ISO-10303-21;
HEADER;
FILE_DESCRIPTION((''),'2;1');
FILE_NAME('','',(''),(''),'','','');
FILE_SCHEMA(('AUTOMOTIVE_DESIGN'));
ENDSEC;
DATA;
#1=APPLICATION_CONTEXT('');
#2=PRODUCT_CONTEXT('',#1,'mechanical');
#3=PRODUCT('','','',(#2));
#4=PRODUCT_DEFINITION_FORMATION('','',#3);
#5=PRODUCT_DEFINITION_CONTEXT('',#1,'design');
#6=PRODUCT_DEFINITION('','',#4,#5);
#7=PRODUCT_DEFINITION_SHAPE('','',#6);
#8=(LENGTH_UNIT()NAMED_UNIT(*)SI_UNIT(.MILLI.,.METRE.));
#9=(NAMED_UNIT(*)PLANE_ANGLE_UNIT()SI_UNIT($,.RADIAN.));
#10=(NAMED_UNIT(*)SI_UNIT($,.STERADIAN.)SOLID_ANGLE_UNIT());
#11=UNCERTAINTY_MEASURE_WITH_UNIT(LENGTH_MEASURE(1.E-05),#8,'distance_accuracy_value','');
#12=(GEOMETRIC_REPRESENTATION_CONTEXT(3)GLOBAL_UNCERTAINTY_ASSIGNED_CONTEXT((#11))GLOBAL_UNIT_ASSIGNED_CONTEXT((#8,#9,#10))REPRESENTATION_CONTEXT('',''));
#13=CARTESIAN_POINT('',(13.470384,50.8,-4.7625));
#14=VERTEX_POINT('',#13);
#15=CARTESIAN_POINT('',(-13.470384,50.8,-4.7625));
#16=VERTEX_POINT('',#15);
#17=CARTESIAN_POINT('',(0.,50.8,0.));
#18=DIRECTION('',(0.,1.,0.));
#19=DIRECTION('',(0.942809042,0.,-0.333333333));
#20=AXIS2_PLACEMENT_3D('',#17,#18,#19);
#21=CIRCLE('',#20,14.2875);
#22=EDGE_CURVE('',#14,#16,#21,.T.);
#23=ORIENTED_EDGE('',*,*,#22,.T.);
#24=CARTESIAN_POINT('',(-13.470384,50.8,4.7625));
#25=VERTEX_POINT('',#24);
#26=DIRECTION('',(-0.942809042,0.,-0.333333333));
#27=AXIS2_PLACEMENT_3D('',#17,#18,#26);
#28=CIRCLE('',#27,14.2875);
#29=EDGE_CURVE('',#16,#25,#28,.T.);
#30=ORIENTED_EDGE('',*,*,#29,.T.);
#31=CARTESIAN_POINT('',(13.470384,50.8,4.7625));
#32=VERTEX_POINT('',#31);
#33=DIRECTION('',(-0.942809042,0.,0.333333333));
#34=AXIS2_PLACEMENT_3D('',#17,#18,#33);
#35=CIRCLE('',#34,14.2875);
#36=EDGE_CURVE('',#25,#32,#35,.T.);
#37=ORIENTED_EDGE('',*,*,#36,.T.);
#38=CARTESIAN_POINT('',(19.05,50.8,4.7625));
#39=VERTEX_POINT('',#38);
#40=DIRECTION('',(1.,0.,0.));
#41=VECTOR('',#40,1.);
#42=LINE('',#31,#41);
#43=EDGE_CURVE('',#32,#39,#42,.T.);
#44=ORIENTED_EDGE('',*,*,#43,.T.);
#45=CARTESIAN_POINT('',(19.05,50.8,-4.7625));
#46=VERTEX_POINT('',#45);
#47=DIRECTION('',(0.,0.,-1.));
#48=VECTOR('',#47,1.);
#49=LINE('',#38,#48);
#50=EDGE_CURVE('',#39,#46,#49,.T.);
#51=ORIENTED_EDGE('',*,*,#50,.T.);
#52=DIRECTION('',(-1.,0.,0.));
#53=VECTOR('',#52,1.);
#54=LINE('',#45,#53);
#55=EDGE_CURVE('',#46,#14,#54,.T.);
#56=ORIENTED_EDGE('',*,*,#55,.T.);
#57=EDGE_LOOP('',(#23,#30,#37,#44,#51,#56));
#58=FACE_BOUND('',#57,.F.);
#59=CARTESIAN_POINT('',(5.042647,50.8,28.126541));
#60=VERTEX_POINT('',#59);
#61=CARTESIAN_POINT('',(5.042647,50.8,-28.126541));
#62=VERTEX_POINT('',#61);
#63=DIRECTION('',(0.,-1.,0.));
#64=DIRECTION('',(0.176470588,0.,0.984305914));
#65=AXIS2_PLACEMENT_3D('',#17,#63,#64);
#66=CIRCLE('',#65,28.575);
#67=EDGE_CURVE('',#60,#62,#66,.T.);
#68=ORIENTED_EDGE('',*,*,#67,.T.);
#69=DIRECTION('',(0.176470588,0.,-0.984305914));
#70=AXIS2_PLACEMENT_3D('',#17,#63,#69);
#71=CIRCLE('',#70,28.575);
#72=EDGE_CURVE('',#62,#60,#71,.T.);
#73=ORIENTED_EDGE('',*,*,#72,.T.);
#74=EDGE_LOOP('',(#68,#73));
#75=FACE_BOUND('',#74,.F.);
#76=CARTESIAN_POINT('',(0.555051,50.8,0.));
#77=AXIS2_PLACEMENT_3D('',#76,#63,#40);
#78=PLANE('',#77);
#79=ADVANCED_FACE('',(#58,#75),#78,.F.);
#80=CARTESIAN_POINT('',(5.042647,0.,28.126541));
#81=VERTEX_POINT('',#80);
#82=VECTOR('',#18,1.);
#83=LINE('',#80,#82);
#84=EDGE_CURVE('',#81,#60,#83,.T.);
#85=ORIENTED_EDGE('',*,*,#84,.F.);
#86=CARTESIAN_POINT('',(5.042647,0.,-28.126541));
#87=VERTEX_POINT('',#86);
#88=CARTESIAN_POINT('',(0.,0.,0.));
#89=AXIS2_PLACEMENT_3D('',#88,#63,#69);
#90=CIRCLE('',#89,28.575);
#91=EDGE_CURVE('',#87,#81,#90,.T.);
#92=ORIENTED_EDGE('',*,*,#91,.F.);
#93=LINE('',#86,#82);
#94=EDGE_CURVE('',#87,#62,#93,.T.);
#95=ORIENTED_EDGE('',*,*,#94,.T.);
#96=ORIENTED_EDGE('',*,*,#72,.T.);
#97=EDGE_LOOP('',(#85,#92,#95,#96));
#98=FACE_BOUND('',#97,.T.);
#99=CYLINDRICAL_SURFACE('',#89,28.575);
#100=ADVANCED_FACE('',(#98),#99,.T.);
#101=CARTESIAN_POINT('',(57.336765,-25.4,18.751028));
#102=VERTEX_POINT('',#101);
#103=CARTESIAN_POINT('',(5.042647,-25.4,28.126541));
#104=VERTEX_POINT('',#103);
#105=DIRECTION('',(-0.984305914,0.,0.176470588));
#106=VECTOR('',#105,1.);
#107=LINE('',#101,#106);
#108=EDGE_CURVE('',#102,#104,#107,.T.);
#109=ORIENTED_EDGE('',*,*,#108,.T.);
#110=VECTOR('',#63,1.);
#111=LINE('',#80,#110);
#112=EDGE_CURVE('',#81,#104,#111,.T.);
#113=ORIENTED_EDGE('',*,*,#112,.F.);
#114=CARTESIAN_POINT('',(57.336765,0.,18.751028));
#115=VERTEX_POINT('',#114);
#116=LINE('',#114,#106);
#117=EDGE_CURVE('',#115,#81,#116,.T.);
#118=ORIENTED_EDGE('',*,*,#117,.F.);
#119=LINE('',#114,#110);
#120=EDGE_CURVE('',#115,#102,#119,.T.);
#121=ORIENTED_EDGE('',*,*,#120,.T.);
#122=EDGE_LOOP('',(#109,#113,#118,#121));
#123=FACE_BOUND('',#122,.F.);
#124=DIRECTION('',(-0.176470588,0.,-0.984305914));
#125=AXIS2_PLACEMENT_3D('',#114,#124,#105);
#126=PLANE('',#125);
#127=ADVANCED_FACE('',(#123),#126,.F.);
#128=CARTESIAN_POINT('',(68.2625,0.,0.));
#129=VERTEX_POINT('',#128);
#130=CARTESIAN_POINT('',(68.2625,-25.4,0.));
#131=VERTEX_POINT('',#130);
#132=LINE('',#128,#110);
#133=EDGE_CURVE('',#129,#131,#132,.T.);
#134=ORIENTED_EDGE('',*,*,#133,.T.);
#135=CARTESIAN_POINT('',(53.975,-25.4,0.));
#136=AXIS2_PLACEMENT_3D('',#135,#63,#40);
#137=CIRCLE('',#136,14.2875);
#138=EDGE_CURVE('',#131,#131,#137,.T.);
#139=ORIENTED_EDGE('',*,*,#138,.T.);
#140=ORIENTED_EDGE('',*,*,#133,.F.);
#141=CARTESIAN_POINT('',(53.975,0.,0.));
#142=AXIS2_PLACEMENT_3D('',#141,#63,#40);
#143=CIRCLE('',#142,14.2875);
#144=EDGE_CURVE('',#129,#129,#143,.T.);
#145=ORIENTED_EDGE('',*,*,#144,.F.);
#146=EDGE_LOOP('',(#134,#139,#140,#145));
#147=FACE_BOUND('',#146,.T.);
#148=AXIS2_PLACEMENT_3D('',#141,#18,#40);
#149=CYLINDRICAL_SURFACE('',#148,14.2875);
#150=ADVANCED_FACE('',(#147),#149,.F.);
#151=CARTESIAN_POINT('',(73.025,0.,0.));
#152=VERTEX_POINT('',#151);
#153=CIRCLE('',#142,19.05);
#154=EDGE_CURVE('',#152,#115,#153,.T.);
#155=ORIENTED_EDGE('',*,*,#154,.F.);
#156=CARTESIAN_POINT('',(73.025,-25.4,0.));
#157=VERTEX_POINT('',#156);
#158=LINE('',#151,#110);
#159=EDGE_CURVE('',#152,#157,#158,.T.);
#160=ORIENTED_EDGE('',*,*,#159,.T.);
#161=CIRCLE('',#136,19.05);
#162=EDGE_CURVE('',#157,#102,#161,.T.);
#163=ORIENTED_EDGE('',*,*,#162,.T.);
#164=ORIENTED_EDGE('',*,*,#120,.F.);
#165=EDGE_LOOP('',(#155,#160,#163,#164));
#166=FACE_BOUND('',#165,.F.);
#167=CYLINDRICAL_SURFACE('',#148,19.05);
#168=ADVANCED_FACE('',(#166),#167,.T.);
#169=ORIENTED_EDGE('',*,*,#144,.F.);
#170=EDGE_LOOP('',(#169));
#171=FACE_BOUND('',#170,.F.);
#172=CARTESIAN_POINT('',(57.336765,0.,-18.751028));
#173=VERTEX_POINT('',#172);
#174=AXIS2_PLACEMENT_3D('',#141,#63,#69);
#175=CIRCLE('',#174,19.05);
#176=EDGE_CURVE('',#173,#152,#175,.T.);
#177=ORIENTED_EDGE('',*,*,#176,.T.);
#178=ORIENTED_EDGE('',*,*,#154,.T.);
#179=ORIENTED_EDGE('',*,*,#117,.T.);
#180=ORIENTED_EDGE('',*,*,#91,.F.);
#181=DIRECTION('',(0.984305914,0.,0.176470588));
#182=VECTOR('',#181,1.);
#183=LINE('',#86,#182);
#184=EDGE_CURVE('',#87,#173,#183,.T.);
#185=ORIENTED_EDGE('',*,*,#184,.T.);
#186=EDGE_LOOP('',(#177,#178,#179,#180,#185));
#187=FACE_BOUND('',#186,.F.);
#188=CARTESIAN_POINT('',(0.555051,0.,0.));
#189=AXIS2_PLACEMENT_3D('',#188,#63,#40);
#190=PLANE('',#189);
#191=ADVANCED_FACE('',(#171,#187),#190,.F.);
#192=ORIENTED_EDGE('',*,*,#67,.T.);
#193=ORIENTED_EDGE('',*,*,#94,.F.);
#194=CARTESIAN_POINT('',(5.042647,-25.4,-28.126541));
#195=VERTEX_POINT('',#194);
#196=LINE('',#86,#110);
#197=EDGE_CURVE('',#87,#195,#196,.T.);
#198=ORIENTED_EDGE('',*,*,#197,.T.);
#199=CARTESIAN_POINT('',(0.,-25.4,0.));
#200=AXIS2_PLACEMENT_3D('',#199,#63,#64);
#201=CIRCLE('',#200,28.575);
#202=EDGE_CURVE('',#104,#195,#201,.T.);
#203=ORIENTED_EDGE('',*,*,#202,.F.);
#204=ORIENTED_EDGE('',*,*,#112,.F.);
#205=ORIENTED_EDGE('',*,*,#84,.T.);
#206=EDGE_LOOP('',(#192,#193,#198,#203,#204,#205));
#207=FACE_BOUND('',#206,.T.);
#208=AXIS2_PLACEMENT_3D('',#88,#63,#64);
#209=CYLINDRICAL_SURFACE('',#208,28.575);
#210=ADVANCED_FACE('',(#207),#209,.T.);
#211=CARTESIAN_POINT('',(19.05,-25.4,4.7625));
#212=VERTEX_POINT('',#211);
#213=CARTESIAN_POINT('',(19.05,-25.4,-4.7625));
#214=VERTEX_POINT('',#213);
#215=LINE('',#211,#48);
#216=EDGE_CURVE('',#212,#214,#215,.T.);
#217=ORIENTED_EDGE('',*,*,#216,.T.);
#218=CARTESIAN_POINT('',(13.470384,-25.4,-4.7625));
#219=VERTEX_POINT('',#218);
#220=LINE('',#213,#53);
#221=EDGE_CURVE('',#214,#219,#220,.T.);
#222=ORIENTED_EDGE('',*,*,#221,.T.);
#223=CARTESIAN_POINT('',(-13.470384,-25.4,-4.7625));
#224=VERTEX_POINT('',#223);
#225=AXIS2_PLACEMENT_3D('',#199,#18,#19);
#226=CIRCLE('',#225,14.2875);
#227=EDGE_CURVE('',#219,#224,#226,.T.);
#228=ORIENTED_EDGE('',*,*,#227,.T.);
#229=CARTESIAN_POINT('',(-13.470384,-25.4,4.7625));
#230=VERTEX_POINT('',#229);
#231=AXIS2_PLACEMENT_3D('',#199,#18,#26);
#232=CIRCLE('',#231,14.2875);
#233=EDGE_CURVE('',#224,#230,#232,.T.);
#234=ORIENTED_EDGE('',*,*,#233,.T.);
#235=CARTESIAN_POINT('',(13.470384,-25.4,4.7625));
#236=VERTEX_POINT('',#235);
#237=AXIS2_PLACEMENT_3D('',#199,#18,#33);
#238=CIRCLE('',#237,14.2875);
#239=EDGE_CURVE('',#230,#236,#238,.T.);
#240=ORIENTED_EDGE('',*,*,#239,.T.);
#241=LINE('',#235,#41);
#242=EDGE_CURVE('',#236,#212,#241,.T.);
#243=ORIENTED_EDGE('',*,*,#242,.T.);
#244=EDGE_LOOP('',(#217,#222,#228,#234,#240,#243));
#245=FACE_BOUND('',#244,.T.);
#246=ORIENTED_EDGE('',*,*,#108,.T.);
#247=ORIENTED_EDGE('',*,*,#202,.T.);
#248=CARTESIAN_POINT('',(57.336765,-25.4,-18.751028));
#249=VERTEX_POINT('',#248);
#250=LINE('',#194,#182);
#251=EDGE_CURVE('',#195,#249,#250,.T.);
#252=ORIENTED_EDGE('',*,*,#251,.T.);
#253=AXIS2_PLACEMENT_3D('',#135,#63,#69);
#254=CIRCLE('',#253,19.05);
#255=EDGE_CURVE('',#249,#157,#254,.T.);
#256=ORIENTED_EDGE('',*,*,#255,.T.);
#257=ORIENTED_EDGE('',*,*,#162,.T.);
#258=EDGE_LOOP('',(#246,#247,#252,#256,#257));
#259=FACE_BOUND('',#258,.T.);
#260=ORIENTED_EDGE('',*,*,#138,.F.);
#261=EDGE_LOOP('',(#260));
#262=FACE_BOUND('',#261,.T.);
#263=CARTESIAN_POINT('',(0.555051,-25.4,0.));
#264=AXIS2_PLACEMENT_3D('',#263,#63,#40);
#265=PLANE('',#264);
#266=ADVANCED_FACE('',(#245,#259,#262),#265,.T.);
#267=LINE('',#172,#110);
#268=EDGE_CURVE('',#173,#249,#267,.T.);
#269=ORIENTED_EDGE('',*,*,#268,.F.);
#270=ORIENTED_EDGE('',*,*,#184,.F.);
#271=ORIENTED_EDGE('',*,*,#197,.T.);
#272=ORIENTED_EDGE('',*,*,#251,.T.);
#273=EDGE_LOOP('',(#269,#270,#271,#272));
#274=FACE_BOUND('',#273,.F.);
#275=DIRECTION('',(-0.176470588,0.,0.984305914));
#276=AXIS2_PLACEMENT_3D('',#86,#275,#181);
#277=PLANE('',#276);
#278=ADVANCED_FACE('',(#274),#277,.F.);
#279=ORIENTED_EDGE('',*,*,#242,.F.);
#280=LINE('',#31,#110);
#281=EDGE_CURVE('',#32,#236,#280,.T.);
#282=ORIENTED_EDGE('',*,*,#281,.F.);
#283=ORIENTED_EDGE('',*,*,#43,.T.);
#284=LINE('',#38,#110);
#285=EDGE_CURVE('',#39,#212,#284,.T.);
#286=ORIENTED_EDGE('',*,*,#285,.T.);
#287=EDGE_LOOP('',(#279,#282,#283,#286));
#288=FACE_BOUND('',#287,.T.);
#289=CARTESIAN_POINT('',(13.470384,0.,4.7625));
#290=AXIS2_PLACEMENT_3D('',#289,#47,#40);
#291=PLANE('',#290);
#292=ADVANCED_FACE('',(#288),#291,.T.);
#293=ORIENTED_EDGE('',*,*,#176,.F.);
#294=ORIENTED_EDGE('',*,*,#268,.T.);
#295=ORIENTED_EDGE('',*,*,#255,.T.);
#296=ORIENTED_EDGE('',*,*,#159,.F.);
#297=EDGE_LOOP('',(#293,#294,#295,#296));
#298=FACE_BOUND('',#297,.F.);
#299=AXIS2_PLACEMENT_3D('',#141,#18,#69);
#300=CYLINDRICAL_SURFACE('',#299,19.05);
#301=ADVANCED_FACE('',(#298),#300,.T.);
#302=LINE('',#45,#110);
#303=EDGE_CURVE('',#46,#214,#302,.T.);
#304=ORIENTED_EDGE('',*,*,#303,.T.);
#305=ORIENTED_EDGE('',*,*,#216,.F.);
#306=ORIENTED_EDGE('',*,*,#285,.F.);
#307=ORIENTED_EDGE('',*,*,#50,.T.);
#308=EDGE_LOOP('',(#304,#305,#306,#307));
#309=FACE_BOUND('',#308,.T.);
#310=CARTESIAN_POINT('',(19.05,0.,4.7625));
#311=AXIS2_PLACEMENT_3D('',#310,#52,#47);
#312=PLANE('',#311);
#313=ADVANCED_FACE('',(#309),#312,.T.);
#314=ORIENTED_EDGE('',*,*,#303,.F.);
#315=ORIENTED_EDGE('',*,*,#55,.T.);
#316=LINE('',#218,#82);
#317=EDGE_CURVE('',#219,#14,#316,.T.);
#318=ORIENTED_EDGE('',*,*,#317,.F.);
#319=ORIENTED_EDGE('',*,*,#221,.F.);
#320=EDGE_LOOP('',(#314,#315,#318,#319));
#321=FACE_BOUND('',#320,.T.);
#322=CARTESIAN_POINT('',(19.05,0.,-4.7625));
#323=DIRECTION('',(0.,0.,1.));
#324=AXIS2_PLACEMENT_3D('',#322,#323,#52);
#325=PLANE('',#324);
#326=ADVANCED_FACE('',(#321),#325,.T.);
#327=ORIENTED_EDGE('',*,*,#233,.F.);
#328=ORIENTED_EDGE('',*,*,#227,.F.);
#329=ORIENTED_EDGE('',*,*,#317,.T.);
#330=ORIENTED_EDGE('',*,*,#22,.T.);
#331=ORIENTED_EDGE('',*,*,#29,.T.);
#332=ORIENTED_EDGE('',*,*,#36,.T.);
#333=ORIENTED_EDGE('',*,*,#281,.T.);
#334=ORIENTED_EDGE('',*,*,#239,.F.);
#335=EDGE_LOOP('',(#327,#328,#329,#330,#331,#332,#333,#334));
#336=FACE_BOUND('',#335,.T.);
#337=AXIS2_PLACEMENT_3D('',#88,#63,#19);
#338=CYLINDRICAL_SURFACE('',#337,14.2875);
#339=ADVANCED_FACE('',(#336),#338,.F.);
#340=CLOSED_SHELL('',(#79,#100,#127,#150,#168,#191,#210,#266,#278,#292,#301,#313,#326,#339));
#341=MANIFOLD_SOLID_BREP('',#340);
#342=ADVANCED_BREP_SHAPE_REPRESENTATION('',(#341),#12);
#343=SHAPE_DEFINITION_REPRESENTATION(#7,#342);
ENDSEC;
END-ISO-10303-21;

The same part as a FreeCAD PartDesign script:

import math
import FreeCAD as App
import Part
import Sketcher

V = App.Vector
Q = App.Units.Quantity

doc = App.newDocument("Part")
body = doc.addObject("PartDesign::Body", "Body")

sketch1 = body.newObject("Sketcher::SketchObject", "Sketch")
sketch1.AttachmentSupport = (doc.getObject("XZ_Plane"), [""])
sketch1.MapMode = "FlatFace"
sketch1.addGeometry([
    Part.ArcOfCircle(Part.Circle(V(0, 0, 0), V(0, 0, 1), 29), math.radians(80), math.radians(280)),
    Part.LineSegment(V(5, -28, 0), V(57, -19, 0)),
    Part.ArcOfCircle(Part.Circle(V(54, 0, 0), V(0, 0, 1), 19), math.radians(-80), math.radians(0)),
    Part.ArcOfCircle(Part.Circle(V(54, 0, 0), V(0, 0, 1), 19), math.radians(0), math.radians(80)),
    Part.LineSegment(V(57, 19, 0), V(5, 28, 0)),
    Part.ArcOfCircle(Part.Circle(V(0, 0, 0), V(0, 0, 1), 14), math.radians(19), math.radians(161)),
    Part.LineSegment(V(13, 5, 0), V(19, 5, 0)),
    Part.LineSegment(V(19, 5, 0), V(19, -5, 0)),
    Part.LineSegment(V(19, -5, 0), V(13, -5, 0)),
    Part.ArcOfCircle(Part.Circle(V(0, 0, 0), V(0, 0, 1), 14), math.radians(-161), math.radians(-19)),
    Part.ArcOfCircle(Part.Circle(V(0, 0, 0), V(0, 0, 1), 14), math.radians(161), math.radians(199)),
    Part.Circle(V(54, 0, 0), V(0, 0, 1), 14),
], False)
sketch1.addConstraint([
    Sketcher.Constraint("Tangent", 0, 2, 1, 1),
    Sketcher.Constraint("Tangent", 1, 2, 2, 1),
    Sketcher.Constraint("Tangent", 2, 2, 3, 1),
    Sketcher.Constraint("Tangent", 3, 2, 4, 1),
    Sketcher.Constraint("Tangent", 4, 2, 0, 1),
    Sketcher.Constraint("Coincident", 5, 1, 6, 1),
    Sketcher.Constraint("Coincident", 6, 2, 7, 1),
    Sketcher.Constraint("Coincident", 7, 2, 8, 1),
    Sketcher.Constraint("Coincident", 8, 2, 9, 2),
    Sketcher.Constraint("Tangent", 9, 1, 10, 2),
    Sketcher.Constraint("Tangent", 10, 1, 5, 2),
    Sketcher.Constraint("Horizontal", 6),
    Sketcher.Constraint("Vertical", 7),
    Sketcher.Constraint("Horizontal", 8),
    Sketcher.Constraint("Coincident", 0, 3, -1, 1),
    Sketcher.Constraint("Coincident", 5, 3, -1, 1),
    Sketcher.Constraint("Coincident", 9, 3, -1, 1),
    Sketcher.Constraint("Coincident", 11, 3, 2, 3),
    Sketcher.Constraint("Equal", 2, 3),
    Sketcher.Constraint("Equal", 10, 11),
    Sketcher.Constraint("PointOnObject", 2, 3, -1),
    Sketcher.Constraint("PointOnObject", 2, 2, -1),
    Sketcher.Constraint("Horizontal", 8, 2, 9, 1),
    Sketcher.Constraint("Horizontal", 6, 2, 10, 1),
    Sketcher.Constraint("Vertical", 5, 1, 8, 2),
    Sketcher.Constraint("Radius", 2, Q("0.75 in")),
    Sketcher.Constraint("Diameter", 11, Q("1.125 in")),
    Sketcher.Constraint("Radius", 0, Q("1.125 in")),
    Sketcher.Constraint("DistanceY", 7, 2, 7, 1, Q("0.375 in")),
    Sketcher.Constraint("DistanceX", -1, 1, 6, 2, Q("0.75 in")),
    Sketcher.Constraint("DistanceX", -1, 1, 2, 3, Q("2.125 in")),
])
pad1 = body.newObject("PartDesign::Pad", "Pad")
pad1.Profile = sketch1
pad1.Length = Q("1 in")

sketch2 = body.newObject("Sketcher::SketchObject", "Sketch001")
sketch2.AttachmentSupport = (doc.getObject("XZ_Plane"), [""])
sketch2.MapMode = "FlatFace"
sketch2.addGeometry([
    Part.ArcOfCircle(Part.Circle(V(0, 0, 0), V(0, 0, 1), 29), math.radians(-80), math.radians(80)),
    Part.ArcOfCircle(Part.Circle(V(0, 0, 0), V(0, 0, 1), 29), math.radians(80), math.radians(280)),
    Part.ArcOfCircle(Part.Circle(V(0, 0, 0), V(0, 0, 1), 14), math.radians(-161), math.radians(-19)),
    Part.ArcOfCircle(Part.Circle(V(0, 0, 0), V(0, 0, 1), 14), math.radians(161), math.radians(199)),
    Part.ArcOfCircle(Part.Circle(V(0, 0, 0), V(0, 0, 1), 14), math.radians(19), math.radians(161)),
    Part.LineSegment(V(13, 5, 0), V(19, 5, 0)),
    Part.LineSegment(V(19, 5, 0), V(19, -5, 0)),
    Part.LineSegment(V(19, -5, 0), V(13, -5, 0)),
], False)
sketch2.addConstraint([
    Sketcher.Constraint("Tangent", 0, 1, 1, 2),
    Sketcher.Constraint("Coincident", 1, 1, 0, 2),
    Sketcher.Constraint("Tangent", 2, 1, 3, 2),
    Sketcher.Constraint("Tangent", 3, 1, 4, 2),
    Sketcher.Constraint("Coincident", 4, 1, 5, 1),
    Sketcher.Constraint("Coincident", 5, 2, 6, 1),
    Sketcher.Constraint("Coincident", 6, 2, 7, 1),
    Sketcher.Constraint("Coincident", 7, 2, 2, 2),
    Sketcher.Constraint("Horizontal", 5),
    Sketcher.Constraint("Vertical", 6),
    Sketcher.Constraint("Horizontal", 7),
    Sketcher.Constraint("Coincident", 0, 3, -1, 1),
    Sketcher.Constraint("Coincident", 2, 3, -1, 1),
    Sketcher.Constraint("Coincident", 4, 3, -1, 1),
    Sketcher.Constraint("Horizontal", 3, 1, 4, 1),
    Sketcher.Constraint("Horizontal", 2, 1, 6, 2),
    Sketcher.Constraint("Vertical", 0, 1, 1, 1),
    Sketcher.Constraint("Vertical", 2, 1, 3, 1),
    Sketcher.Constraint("Radius", 0, Q("1.125 in")),
    Sketcher.Constraint("Radius", 2, Q("0.5625 in")),
    Sketcher.Constraint("DistanceY", 6, 2, 6, 1, Q("0.375 in")),
    Sketcher.Constraint("DistanceX", -1, 1, 5, 2, Q("0.75 in")),
    Sketcher.Constraint("DistanceY", 0, 1, -1, 1, 28.126541),
])
pad2 = body.newObject("PartDesign::Pad", "Pad001")
pad2.Profile = sketch2
pad2.Length = Q("2 in")
pad2.Reversed = True

doc.recompute()
